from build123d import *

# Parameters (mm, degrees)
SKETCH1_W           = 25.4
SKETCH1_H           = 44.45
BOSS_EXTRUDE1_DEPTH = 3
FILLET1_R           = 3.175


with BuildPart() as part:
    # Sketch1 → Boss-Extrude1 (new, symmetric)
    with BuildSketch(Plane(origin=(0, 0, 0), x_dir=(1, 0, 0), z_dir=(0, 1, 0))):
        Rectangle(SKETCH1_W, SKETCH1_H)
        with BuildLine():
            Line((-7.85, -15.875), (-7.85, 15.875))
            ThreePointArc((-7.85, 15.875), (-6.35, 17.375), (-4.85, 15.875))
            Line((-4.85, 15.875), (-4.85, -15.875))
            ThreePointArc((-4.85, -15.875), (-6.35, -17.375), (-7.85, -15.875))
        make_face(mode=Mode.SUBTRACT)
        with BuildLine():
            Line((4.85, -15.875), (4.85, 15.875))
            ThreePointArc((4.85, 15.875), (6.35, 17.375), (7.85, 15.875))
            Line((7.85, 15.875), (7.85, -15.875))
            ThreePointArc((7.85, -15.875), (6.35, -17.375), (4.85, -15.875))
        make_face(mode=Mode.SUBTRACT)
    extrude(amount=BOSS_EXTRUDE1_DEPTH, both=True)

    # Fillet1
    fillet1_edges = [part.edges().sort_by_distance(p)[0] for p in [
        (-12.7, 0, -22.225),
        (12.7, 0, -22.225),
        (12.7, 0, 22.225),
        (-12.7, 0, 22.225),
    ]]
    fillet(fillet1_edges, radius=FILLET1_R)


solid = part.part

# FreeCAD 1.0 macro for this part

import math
import FreeCAD as App
import Part
import Sketcher
Q = App.Units.Quantity


def edges_at(feature, points):
    """Names of the edges that pass closest to the given points."""
    edges = feature.Shape.Edges
    near = lambda p: min(range(len(edges)), key=lambda i: edges[i].distToShape(Part.Vertex(*p))[0])
    return sorted({f"Edge{near(p) + 1}" for p in points})


def add_polygon(sketch, points):
    """Adds a closed chain of lines whose ends are joined by coincident constraints."""
    first, n = sketch.GeometryCount, len(points)
    for a, b in zip(points, points[1:] + points[:1]):
        sketch.addGeometry(Part.LineSegment(App.Vector(*a, 0), App.Vector(*b, 0)), False)
    for i in range(n):
        sketch.addConstraint(Sketcher.Constraint("Coincident", first + i, 2, first + (i + 1) % n, 1))

doc = App.newDocument("Part")
body = doc.addObject("PartDesign::Body", "Body")

# Sketch on XZ plane
sketch1 = doc.addObject("Sketcher::SketchObject", "Sketch")
body.addObject(sketch1)
sketch1.AttachmentSupport = (doc.XZ_Plane, [""])
sketch1.MapMode = "FlatFace"
add_polygon(sketch1, [(-12.7, -22.2), (-12.7, 22.2), (12.7, 22.2), (12.7, -22.2)])  # lines 0-3
sketch1.addGeometry(Part.ArcOfCircle(Part.Circle(App.Vector(-6.3, 15.9, 0), App.Vector(0, 0, 1), 1.5), math.radians(0), math.radians(180)), False)  # 4
sketch1.addGeometry(Part.LineSegment(App.Vector(-7.8, 15.9, 0), App.Vector(-7.8, -15.9, 0)), False)  # 5
sketch1.addGeometry(Part.ArcOfCircle(Part.Circle(App.Vector(-6.3, -15.9, 0), App.Vector(0, 0, 1), 1.5), math.radians(180), math.radians(360)), False)  # 6
sketch1.addGeometry(Part.LineSegment(App.Vector(-4.8, -15.9, 0), App.Vector(-4.8, 15.9, 0)), False)  # 7
sketch1.addGeometry(Part.ArcOfCircle(Part.Circle(App.Vector(6.3, 15.9, 0), App.Vector(0, 0, 1), 1.5), math.radians(0), math.radians(180)), False)  # 8
sketch1.addGeometry(Part.LineSegment(App.Vector(4.8, 15.9, 0), App.Vector(4.8, -15.9, 0)), False)  # 9
sketch1.addGeometry(Part.ArcOfCircle(Part.Circle(App.Vector(6.3, -15.9, 0), App.Vector(0, 0, 1), 1.5), math.radians(180), math.radians(360)), False)  # 10
sketch1.addGeometry(Part.LineSegment(App.Vector(7.8, -15.9, 0), App.Vector(7.8, 15.9, 0)), False)  # 11
sketch1.addConstraint(Sketcher.Constraint("Tangent", 4, 2, 5, 1))
sketch1.addConstraint(Sketcher.Constraint("Tangent", 5, 2, 6, 1))
sketch1.addConstraint(Sketcher.Constraint("Tangent", 6, 2, 7, 1))
sketch1.addConstraint(Sketcher.Constraint("Tangent", 7, 2, 4, 1))
sketch1.addConstraint(Sketcher.Constraint("Tangent", 8, 2, 9, 1))
sketch1.addConstraint(Sketcher.Constraint("Tangent", 9, 2, 10, 1))
sketch1.addConstraint(Sketcher.Constraint("Tangent", 10, 2, 11, 1))
sketch1.addConstraint(Sketcher.Constraint("Tangent", 11, 2, 8, 1))
sketch1.addConstraint(Sketcher.Constraint("Vertical", 0))
sketch1.addConstraint(Sketcher.Constraint("Horizontal", 1))
sketch1.addConstraint(Sketcher.Constraint("Vertical", 2))
sketch1.addConstraint(Sketcher.Constraint("Horizontal", 3))
sketch1.addConstraint(Sketcher.Constraint("Vertical", 5))
sketch1.addConstraint(Sketcher.Constraint("Vertical", 7))
sketch1.addConstraint(Sketcher.Constraint("Vertical", 9))
sketch1.addConstraint(Sketcher.Constraint("Vertical", 11))
sketch1.addConstraint(Sketcher.Constraint("Equal", 6, 8))
sketch1.addConstraint(Sketcher.Constraint("Symmetric", 6, 3, 8, 3, -1, 1))
sketch1.addConstraint(Sketcher.Constraint("Symmetric", 0, 2, 2, 2, -1, 1))
sketch1.addConstraint(Sketcher.Constraint("Horizontal", 4, 3, 8, 3))
sketch1.addConstraint(Sketcher.Constraint("Horizontal", 6, 3, 10, 3))
sketch1.addConstraint(Sketcher.Constraint("DistanceX", 1, 1, 1, 2, Q("1 in")))
sketch1.addConstraint(Sketcher.Constraint("DistanceY", 0, 1, 0, 2, Q("1.75 in")))
sketch1.addConstraint(Sketcher.Constraint("DistanceY", 5, 2, 5, 1, Q("1.25 in")))
sketch1.addConstraint(Sketcher.Constraint("DistanceX", 4, 3, 8, 3, Q("0.5 in")))
sketch1.addConstraint(Sketcher.Constraint("Radius", 4, 1.5))
pad1 = doc.addObject("PartDesign::Pad", "Pad")
body.addObject(pad1)
pad1.Profile = sketch1
pad1.Length = 6
pad1.Midplane = True
doc.recompute()

fillet = doc.addObject("PartDesign::Fillet", "Fillet")
body.addObject(fillet)
fillet.Base = (pad1, edges_at(pad1, [
    (-12.7, 0, -22.225),
    (12.7, 0, -22.225),
    (12.7, 0, 22.225),
    (-12.7, 0, 22.225),
]))
fillet.Radius = Q("0.125 in")

doc.recompute()
